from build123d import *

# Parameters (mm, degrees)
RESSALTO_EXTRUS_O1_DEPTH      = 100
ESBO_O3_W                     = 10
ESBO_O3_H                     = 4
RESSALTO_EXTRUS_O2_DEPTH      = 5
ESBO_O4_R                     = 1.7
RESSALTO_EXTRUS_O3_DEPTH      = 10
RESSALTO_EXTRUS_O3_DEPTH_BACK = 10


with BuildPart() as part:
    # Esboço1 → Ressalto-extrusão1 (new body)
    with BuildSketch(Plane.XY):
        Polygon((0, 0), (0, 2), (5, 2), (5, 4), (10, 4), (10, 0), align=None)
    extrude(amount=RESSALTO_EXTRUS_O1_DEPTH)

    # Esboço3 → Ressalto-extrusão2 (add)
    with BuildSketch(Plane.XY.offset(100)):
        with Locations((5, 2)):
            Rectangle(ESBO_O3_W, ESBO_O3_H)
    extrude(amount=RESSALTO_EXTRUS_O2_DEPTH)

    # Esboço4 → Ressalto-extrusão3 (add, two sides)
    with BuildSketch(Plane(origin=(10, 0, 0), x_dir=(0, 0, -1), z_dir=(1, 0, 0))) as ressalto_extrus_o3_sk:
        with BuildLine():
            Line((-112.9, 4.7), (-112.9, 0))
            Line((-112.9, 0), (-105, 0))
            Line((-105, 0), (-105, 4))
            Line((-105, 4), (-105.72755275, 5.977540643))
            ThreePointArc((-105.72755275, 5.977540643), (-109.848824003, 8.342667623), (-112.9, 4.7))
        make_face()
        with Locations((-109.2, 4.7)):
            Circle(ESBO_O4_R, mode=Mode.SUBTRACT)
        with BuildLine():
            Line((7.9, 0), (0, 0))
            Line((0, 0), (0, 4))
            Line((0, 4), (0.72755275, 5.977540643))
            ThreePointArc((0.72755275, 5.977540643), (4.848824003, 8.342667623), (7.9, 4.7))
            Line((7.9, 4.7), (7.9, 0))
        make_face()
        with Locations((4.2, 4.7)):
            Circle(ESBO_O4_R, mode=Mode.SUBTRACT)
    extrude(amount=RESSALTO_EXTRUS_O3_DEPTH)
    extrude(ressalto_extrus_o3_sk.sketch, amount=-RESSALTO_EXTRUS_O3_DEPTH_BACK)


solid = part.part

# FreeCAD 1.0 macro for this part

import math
import FreeCAD as App
import Part
import Sketcher

doc = App.newDocument("Part")
body = doc.addObject("PartDesign::Body", "Body")

sketch1 = body.newObject("Sketcher::SketchObject", "Sketch")
sketch1.AttachmentSupport = (doc.getObject("XY_Plane"), [""])
sketch1.MapMode = "FlatFace"
sketch1.addGeometry([
    Part.LineSegment(App.Vector(0, 2, 0), App.Vector(0, 0, 0)),
    Part.LineSegment(App.Vector(0, 0, 0), App.Vector(10, 0, 0)),
    Part.LineSegment(App.Vector(10, 0, 0), App.Vector(10, 4, 0)),
    Part.LineSegment(App.Vector(10, 4, 0), App.Vector(5, 4, 0)),
    Part.LineSegment(App.Vector(5, 4, 0), App.Vector(5, 2, 0)),
    Part.LineSegment(App.Vector(5, 2, 0), App.Vector(0, 2, 0)),
], False)
sketch1.addConstraint([
    Sketcher.Constraint("Coincident", 0, 2, 1, 1),
    Sketcher.Constraint("Coincident", 1, 2, 2, 1),
    Sketcher.Constraint("Coincident", 2, 2, 3, 1),
    Sketcher.Constraint("Coincident", 3, 2, 4, 1),
    Sketcher.Constraint("Coincident", 4, 2, 5, 1),
    Sketcher.Constraint("Coincident", 5, 2, 0, 1),
    Sketcher.Constraint("Vertical", 0),
    Sketcher.Constraint("Horizontal", 1),
    Sketcher.Constraint("Vertical", 2),
    Sketcher.Constraint("Horizontal", 3),
    Sketcher.Constraint("Vertical", 4),
    Sketcher.Constraint("Horizontal", 5),
    Sketcher.Constraint("Coincident", 0, 2, -1, 1),
    Sketcher.Constraint("Equal", 3, 5),
    Sketcher.Constraint("Equal", 0, 4),
    Sketcher.Constraint("DistanceX", 1, 1, 1, 2, 10.0),
    Sketcher.Constraint("DistanceY", 0, 2, 0, 1, 2.0),
])
pad1 = body.newObject("PartDesign::Pad", "Pad")
pad1.Profile = sketch1
pad1.Length = 100

sketch2 = body.newObject("Sketcher::SketchObject", "Sketch001")
sketch2.AttachmentSupport = (doc.getObject("XY_Plane"), [""])
sketch2.MapMode = "FlatFace"
sketch2.AttachmentOffset = App.Placement(App.Vector(0, 0, 100), App.Rotation())
sketch2.addGeometry([
    Part.LineSegment(App.Vector(0, 4, 0), App.Vector(0, 0, 0)),
    Part.LineSegment(App.Vector(0, 0, 0), App.Vector(10, 0, 0)),
    Part.LineSegment(App.Vector(10, 0, 0), App.Vector(10, 4, 0)),
    Part.LineSegment(App.Vector(10, 4, 0), App.Vector(0, 4, 0)),
], False)
sketch2.addConstraint([
    Sketcher.Constraint("Coincident", 0, 2, 1, 1),
    Sketcher.Constraint("Coincident", 1, 2, 2, 1),
    Sketcher.Constraint("Coincident", 2, 2, 3, 1),
    Sketcher.Constraint("Coincident", 3, 2, 0, 1),
    Sketcher.Constraint("Vertical", 0),
    Sketcher.Constraint("Horizontal", 1),
    Sketcher.Constraint("Vertical", 2),
    Sketcher.Constraint("Horizontal", 3),
    Sketcher.Constraint("Coincident", 0, 2, -1, 1),
    Sketcher.Constraint("DistanceX", 1, 1, 1, 2, 10.0),
    Sketcher.Constraint("DistanceY", 0, 2, 0, 1, 4.0),
])
pad2 = body.newObject("PartDesign::Pad", "Pad001")
pad2.Profile = sketch2
pad2.Length = 5

sketch3 = body.newObject("Sketcher::SketchObject", "Sketch002")
sketch3.AttachmentSupport = (doc.getObject("YZ_Plane"), [""])
sketch3.MapMode = "FlatFace"
sketch3.AttachmentOffset = App.Placement(App.Vector(0, 0, 10), App.Rotation())
sketch3.addGeometry([
    Part.LineSegment(App.Vector(4.7, 112.9, 0), App.Vector(0, 112.9, 0)),
    Part.LineSegment(App.Vector(0, 112.9, 0), App.Vector(0, 105, 0)),
    Part.LineSegment(App.Vector(0, 105, 0), App.Vector(4, 105, 0)),
    Part.LineSegment(App.Vector(4, 105, 0), App.Vector(6, 105.7, 0)),
    Part.ArcOfCircle(Part.Circle(App.Vector(4.7, 109.2, 0), App.Vector(0, 0, 1), 3.7), math.radians(-70), math.radians(90)),
    Part.Circle(App.Vector(4.7, 109.2, 0), App.Vector(0, 0, 1), 1.7),
    Part.LineSegment(App.Vector(0, 0, 0), App.Vector(0, -7.9, 0)),
    Part.LineSegment(App.Vector(0, -7.9, 0), App.Vector(4.7, -7.9, 0)),
    Part.ArcOfCircle(Part.Circle(App.Vector(4.7, -4.2, 0), App.Vector(0, 0, 1), 3.7), math.radians(-90), math.radians(70)),
    Part.LineSegment(App.Vector(6, -0.7, 0), App.Vector(4, 0, 0)),
    Part.LineSegment(App.Vector(4, 0, 0), App.Vector(0, 0, 0)),
    Part.Circle(App.Vector(4.7, -4.2, 0), App.Vector(0, 0, 1), 1.7),
], False)
sketch3.addConstraint([
    Sketcher.Constraint("Coincident", 0, 2, 1, 1),
    Sketcher.Constraint("Coincident", 1, 2, 2, 1),
    Sketcher.Constraint("Coincident", 2, 2, 3, 1),
    Sketcher.Constraint("Tangent", 3, 2, 4, 1),
    Sketcher.Constraint("Tangent", 4, 2, 0, 1),
    Sketcher.Constraint("Coincident", 6, 2, 7, 1),
    Sketcher.Constraint("Tangent", 7, 2, 8, 1),
    Sketcher.Constraint("Tangent", 8, 2, 9, 1),
    Sketcher.Constraint("Coincident", 9, 2, 10, 1),
    Sketcher.Constraint("Coincident", 10, 2, 6, 1),
    Sketcher.Constraint("Horizontal", 0),
    Sketcher.Constraint("Vertical", 1),
    Sketcher.Constraint("Horizontal", 2),
    Sketcher.Constraint("Vertical", 6),
    Sketcher.Constraint("Horizontal", 7),
    Sketcher.Constraint("Horizontal", 10),
    Sketcher.Constraint("Coincident", 10, 2, -1, 1),
    Sketcher.Constraint("Coincident", 5, 3, 4, 3),
    Sketcher.Constraint("Coincident", 11, 3, 8, 3),
    Sketcher.Constraint("Equal", 4, 8),
    Sketcher.Constraint("Equal", 5, 11),
    Sketcher.Constraint("PointOnObject", 0, 2, -2),
    Sketcher.Constraint("Vertical", 5, 3, 8, 3),
    Sketcher.Constraint("Vertical", 3, 2, 8, 2),
    Sketcher.Constraint("Vertical", 2, 2, 9, 2),
    Sketcher.Constraint("Diameter", 5, 3.4),
    Sketcher.Constraint("Radius", 4, 3.7),
    Sketcher.Constraint("DistanceX", 2, 1, 2, 2, 4.0),
    Sketcher.Constraint("DistanceX", 0, 2, 0, 1, 4.7),
    Sketcher.Constraint("DistanceY", 1, 2, 1, 1, 7.9),
    Sketcher.Constraint("DistanceY", -1, 1, 1, 2, 105.0),
])
pad3 = body.newObject("PartDesign::Pad", "Pad002")
pad3.Profile = sketch3
pad3.Type = "TwoLengths"
pad3.Length = 10
pad3.Length2 = 10

doc.recompute()
